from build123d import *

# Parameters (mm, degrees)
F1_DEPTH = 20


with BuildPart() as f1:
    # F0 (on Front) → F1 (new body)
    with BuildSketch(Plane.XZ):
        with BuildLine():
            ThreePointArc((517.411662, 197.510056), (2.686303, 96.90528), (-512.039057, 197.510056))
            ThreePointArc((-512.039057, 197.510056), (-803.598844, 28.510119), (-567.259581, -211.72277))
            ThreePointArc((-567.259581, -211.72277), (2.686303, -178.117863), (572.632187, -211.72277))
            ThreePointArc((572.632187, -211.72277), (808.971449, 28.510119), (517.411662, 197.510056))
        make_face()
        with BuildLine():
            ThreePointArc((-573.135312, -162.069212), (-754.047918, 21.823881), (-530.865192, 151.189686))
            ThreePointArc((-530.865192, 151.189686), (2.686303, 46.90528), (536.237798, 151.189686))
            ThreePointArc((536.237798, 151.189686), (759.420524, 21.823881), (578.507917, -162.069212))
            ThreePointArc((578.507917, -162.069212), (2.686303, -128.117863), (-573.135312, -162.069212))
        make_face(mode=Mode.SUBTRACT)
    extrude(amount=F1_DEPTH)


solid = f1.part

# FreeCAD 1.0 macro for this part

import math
import FreeCAD as App
import Part
import Sketcher
Q = App.Units.Quantity

doc = App.newDocument("Part")
body = doc.addObject("PartDesign::Body", "Body")

# Sketch on XZ plane
sketch1 = body.newObject("Sketcher::SketchObject", "Sketch")
sketch1.AttachmentSupport = (doc.getObject("XZ_Plane"), [""])
sketch1.MapMode = "FlatFace"
sketch1.addGeometry([
    Part.ArcOfCircle(Part.Circle(App.Vector(3, 1464, 0), App.Vector(0, 0, 1), 1367), math.radians(-112), math.radians(-68)),  # 0
    Part.ArcOfCircle(Part.Circle(App.Vector(-592, 0, 0), App.Vector(0, 0, 1), 213), math.radians(68), math.radians(277)),  # 1
    Part.ArcOfCircle(Part.Circle(App.Vector(3, -5028, 0), App.Vector(0, 0, 1), 4850), math.radians(83.25), math.radians(96.75)),  # 2
    Part.ArcOfCircle(Part.Circle(App.Vector(598, 0, 0), App.Vector(0, 0, 1), 213), math.radians(-97), math.radians(112)),  # 3
    Part.ArcOfCircle(Part.Circle(App.Vector(3, -5028, 0), App.Vector(0, 0, 1), 4900), math.radians(83.25), math.radians(96.75)),  # 4
    Part.ArcOfCircle(Part.Circle(App.Vector(-592, 0, 0), App.Vector(0, 0, 1), 163), math.radians(68), math.radians(277)),  # 5
    Part.ArcOfCircle(Part.Circle(App.Vector(3, 1464, 0), App.Vector(0, 0, 1), 1417), math.radians(-112), math.radians(-68)),  # 6
    Part.ArcOfCircle(Part.Circle(App.Vector(598, 0, 0), App.Vector(0, 0, 1), 163), math.radians(-97), math.radians(112)),  # 7
], False)
sketch1.addConstraint([
    Sketcher.Constraint("Tangent", 0, 1, 1, 1),
    Sketcher.Constraint("Tangent", 1, 2, 2, 2),
    Sketcher.Constraint("Tangent", 2, 1, 3, 1),
    Sketcher.Constraint("Tangent", 3, 2, 0, 2),
    Sketcher.Constraint("Tangent", 4, 2, 5, 2),
    Sketcher.Constraint("Tangent", 5, 1, 6, 1),
    Sketcher.Constraint("Tangent", 6, 2, 7, 2),
    Sketcher.Constraint("Tangent", 7, 1, 4, 1),
    Sketcher.Constraint("Coincident", 5, 3, 1, 3),
    Sketcher.Constraint("Coincident", 6, 3, 0, 3),
    Sketcher.Constraint("Coincident", 7, 3, 3, 3),
    Sketcher.Constraint("Equal", 1, 3),
    Sketcher.Constraint("PointOnObject", 1, 3, -1),
    Sketcher.Constraint("PointOnObject", 3, 3, -1),
    Sketcher.Constraint("Radius", 1, Q("213.2 mm")),
    Sketcher.Constraint("Radius", 5, Q("163.2 mm")),
    Sketcher.Constraint("Radius", 6, Q("1417.050001 mm")),
    Sketcher.Constraint("DistanceX", 1, 3, 0, 3, Q("595 mm")),
    Sketcher.Constraint("Radius", 2, Q("4850.000038 mm")),
    Sketcher.Constraint("Radius", 4, Q("4900.000083 mm")),
    Sketcher.Constraint("DistanceX", 5, 1, -1, 1, Q("530.865192 mm")),
])
pad1 = body.newObject("PartDesign::Pad", "Pad")
pad1.Profile = sketch1
pad1.Length = 20

doc.recompute()
